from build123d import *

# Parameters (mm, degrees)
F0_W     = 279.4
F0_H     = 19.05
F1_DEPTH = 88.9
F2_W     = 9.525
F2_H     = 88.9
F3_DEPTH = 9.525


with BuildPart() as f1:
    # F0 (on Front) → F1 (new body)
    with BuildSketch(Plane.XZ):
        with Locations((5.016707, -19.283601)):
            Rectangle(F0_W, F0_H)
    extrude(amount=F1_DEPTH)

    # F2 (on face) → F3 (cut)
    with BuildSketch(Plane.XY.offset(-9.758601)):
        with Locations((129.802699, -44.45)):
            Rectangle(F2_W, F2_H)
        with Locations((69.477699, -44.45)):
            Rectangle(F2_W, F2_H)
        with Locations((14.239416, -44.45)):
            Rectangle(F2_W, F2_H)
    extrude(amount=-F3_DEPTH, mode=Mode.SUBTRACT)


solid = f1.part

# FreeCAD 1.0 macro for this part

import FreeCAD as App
import Part
import Sketcher
Q = App.Units.Quantity


def add_polygon(sketch, points):
    """Adds a closed chain of lines whose ends are joined by coincident constraints."""
    first, n = sketch.GeometryCount, len(points)
    for a, b in zip(points, points[1:] + points[:1]):
        sketch.addGeometry(Part.LineSegment(App.Vector(*a, 0), App.Vector(*b, 0)), False)
    for i in range(n):
        sketch.addConstraint(Sketcher.Constraint("Coincident", first + i, 2, first + (i + 1) % n, 1))

doc = App.newDocument("Part")
body = doc.addObject("PartDesign::Body", "Body")

# Sketch on XZ plane
sketch1 = body.newObject("Sketcher::SketchObject", "Sketch")
sketch1.AttachmentSupport = (doc.getObject("XZ_Plane"), [""])
sketch1.MapMode = "FlatFace"
add_polygon(sketch1, [(-134.683293, -9.758601), (-134.683293, -28.808601), (144.716707, -28.808601), (144.716707, -9.758601)])  # lines 0-3
sketch1.addConstraint(Sketcher.Constraint("Vertical", 0))
sketch1.addConstraint(Sketcher.Constraint("Horizontal", 1))
sketch1.addConstraint(Sketcher.Constraint("Vertical", 2))
sketch1.addConstraint(Sketcher.Constraint("Horizontal", 3))
sketch1.addConstraint(Sketcher.Constraint("DistanceX", 1, 1, 1, 2, Q("11 in")))
sketch1.addConstraint(Sketcher.Constraint("DistanceY", 0, 2, 0, 1, Q("0.75 in")))
sketch1.addConstraint(Sketcher.Constraint("DistanceY", 0, 2, -1, 1, Q("28.808601 mm")))
sketch1.addConstraint(Sketcher.Constraint("DistanceX", 0, 2, -1, 1, Q("134.683293 mm")))
pad1 = body.newObject("PartDesign::Pad", "Pad")
pad1.Profile = sketch1
pad1.Length = Q("3.5 in")

# Sketch on XY plane
sketch2 = body.newObject("Sketcher::SketchObject", "Sketch001")
sketch2.AttachmentSupport = (doc.getObject("XY_Plane"), [""])
sketch2.MapMode = "FlatFace"
sketch2.AttachmentOffset = App.Placement(App.Vector(0, 0, -9.758601), App.Rotation())
add_polygon(sketch2, [(125.040199, 0), (125.040199, -88.9), (134.565199, -88.9), (134.565199, 0)])  # lines 0-3
add_polygon(sketch2, [(64.715199, 0), (64.715199, -88.9), (74.240199, -88.9), (74.240199, 0)])  # lines 4-7
add_polygon(sketch2, [(9.476916, 0), (9.476916, -88.9), (19.001916, -88.9), (19.001916, 0)])  # lines 8-11
sketch2.addConstraint(Sketcher.Constraint("Vertical", 0))
sketch2.addConstraint(Sketcher.Constraint("Horizontal", 1))
sketch2.addConstraint(Sketcher.Constraint("Vertical", 2))
sketch2.addConstraint(Sketcher.Constraint("Horizontal", 3))
sketch2.addConstraint(Sketcher.Constraint("Vertical", 4))
sketch2.addConstraint(Sketcher.Constraint("Horizontal", 5))
sketch2.addConstraint(Sketcher.Constraint("Vertical", 6))
sketch2.addConstraint(Sketcher.Constraint("Horizontal", 7))
sketch2.addConstraint(Sketcher.Constraint("Vertical", 8))
sketch2.addConstraint(Sketcher.Constraint("Horizontal", 9))
sketch2.addConstraint(Sketcher.Constraint("Vertical", 10))
sketch2.addConstraint(Sketcher.Constraint("Horizontal", 11))
sketch2.addConstraint(Sketcher.Constraint("PointOnObject", 2, 2, -1))
sketch2.addConstraint(Sketcher.Constraint("PointOnObject", 6, 2, -1))
sketch2.addConstraint(Sketcher.Constraint("PointOnObject", 10, 2, -1))
sketch2.addConstraint(Sketcher.Constraint("Horizontal", 1, 2, 4, 2))
sketch2.addConstraint(Sketcher.Constraint("Horizontal", 5, 2, 8, 2))
sketch2.addConstraint(Sketcher.Constraint("Equal", 3, 5))
sketch2.addConstraint(Sketcher.Constraint("Equal", 7, 9))
sketch2.addConstraint(Sketcher.Constraint("DistanceY", 0, 2, 0, 1, Q("3.5 in")))
sketch2.addConstraint(Sketcher.Constraint("DistanceX", 5, 2, 0, 2, Q("2 in")))
sketch2.addConstraint(Sketcher.Constraint("DistanceX", 1, 1, 1, 2, Q("0.375 in")))
sketch2.addConstraint(Sketcher.Constraint("DistanceX", -1, 1, 0, 2, Q("125.040199 mm")))
sketch2.addConstraint(Sketcher.Constraint("DistanceX", -1, 1, 8, 2, Q("9.476916 mm")))
pocket1 = body.newObject("PartDesign::Pocket", "Pocket")
pocket1.Profile = sketch2
pocket1.Length = Q("0.375 in")

doc.recompute()
